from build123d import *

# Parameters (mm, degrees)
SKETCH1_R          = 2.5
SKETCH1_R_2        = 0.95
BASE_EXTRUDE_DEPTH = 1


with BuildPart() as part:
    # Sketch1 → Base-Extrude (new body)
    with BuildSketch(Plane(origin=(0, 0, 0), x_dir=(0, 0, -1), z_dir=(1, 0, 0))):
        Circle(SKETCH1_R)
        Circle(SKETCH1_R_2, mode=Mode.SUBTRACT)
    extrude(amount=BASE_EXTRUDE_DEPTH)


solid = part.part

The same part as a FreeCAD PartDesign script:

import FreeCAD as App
import Part
import Sketcher
from FreeCAD import Vector
Q = App.Units.Quantity

doc = App.newDocument("Part")
params = doc.addObject("Spreadsheet::Sheet", "Params")
for row, (alias, value) in enumerate([
    ("sketch1_diameter", "5 mm"),
    ("sketch1_diameter2", "1.9 mm"),
    ("pad1_length", "1 mm"),
], start=1):
    params.set(f"A{row}", alias)
    params.set(f"B{row}", "=" + value)
    params.setAlias(f"B{row}", alias)

body = doc.addObject("PartDesign::Body", "Body")

# Sketch on YZ plane
sketch1 = body.newObject("Sketcher::SketchObject", "Sketch")
sketch1.AttachmentSupport = (doc.getObject("YZ_Plane"), [""])
sketch1.MapMode = "FlatFace"
sketch1.addGeometry(Part.Circle(Vector(0, 0, 0), Vector(0, 0, 1), 2.5), False)
sketch1.addGeometry(Part.Circle(Vector(0, 0, 0), Vector(0, 0, 1), 0.9), False)
sketch1.addConstraint(Sketcher.Constraint("Coincident", 0, 3, -1, 1))
sketch1.addConstraint(Sketcher.Constraint("Coincident", 1, 3, -1, 1))
sketch1.addConstraint(Sketcher.Constraint("Diameter", 0, Q("5 mm")))
sketch1.addConstraint(Sketcher.Constraint("Diameter", 1, Q("1.9 mm")))
sketch1.setExpression("Constraints[2]", "Params.sketch1_diameter")
sketch1.setExpression("Constraints[3]", "Params.sketch1_diameter2")
pad1 = body.newObject("PartDesign::Pad", "Pad")
pad1.Profile = sketch1
pad1.setExpression("Length", "Params.pad1_length")

doc.recompute()
